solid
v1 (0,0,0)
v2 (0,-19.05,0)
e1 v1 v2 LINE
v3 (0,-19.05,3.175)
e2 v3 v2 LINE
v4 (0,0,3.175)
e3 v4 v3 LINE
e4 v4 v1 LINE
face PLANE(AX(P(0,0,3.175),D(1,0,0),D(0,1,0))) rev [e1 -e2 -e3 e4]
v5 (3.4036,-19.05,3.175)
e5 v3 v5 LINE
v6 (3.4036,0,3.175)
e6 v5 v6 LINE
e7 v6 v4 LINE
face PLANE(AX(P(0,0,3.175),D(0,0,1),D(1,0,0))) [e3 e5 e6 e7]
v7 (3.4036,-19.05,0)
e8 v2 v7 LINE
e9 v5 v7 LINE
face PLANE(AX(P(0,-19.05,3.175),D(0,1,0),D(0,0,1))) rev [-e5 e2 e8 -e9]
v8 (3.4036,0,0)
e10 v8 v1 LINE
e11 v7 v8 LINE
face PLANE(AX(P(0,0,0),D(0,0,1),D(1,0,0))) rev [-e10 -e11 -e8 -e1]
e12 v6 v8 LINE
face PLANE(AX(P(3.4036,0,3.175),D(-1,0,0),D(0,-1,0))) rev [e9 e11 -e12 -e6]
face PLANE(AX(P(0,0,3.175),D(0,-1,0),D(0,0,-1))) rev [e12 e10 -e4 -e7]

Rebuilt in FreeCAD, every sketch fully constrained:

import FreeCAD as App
import Part
import Sketcher
Q = App.Units.Quantity


def add_polygon(sketch, points):
    """Adds a closed chain of lines whose ends are joined by coincident constraints."""
    first, n = sketch.GeometryCount, len(points)
    for a, b in zip(points, points[1:] + points[:1]):
        sketch.addGeometry(Part.LineSegment(App.Vector(*a, 0), App.Vector(*b, 0)), False)
    for i in range(n):
        sketch.addConstraint(Sketcher.Constraint("Coincident", first + i, 2, first + (i + 1) % n, 1))

doc = App.newDocument("Part")
params = doc.addObject("Spreadsheet::Sheet", "Params")
for row, (alias, value) in enumerate([
    ("sketch1_height", "0.75 in"),
    ("sketch1_width", "0.134 in"),
    ("pad1_length", "0.125 in"),
], start=1):
    params.set(f"A{row}", alias)
    params.set(f"B{row}", "=" + value)
    params.setAlias(f"B{row}", alias)

body = doc.addObject("PartDesign::Body", "Body")

sketch1 = body.newObject("Sketcher::SketchObject", "Sketch")
sketch1.AttachmentSupport = (doc.getObject("XY_Plane"), [""])
sketch1.MapMode = "FlatFace"
add_polygon(sketch1, [(0, 0), (0, -19.1), (3.4, -19.1), (3.4, 0)])
sketch1.addConstraint(Sketcher.Constraint("Vertical", 0))
sketch1.addConstraint(Sketcher.Constraint("Horizontal", 1))
sketch1.addConstraint(Sketcher.Constraint("Vertical", 2))
sketch1.addConstraint(Sketcher.Constraint("Horizontal", 3))
sketch1.addConstraint(Sketcher.Constraint("Coincident", 3, 2, -1, 1))
sketch1.addConstraint(Sketcher.Constraint("DistanceY", 0, 2, 0, 1, Q("0.75 in")))
sketch1.addConstraint(Sketcher.Constraint("DistanceX", 1, 1, 1, 2, Q("0.134 in")))
sketch1.setExpression("Constraints[9]", "Params.sketch1_height")
sketch1.setExpression("Constraints[10]", "Params.sketch1_width")
pad1 = body.newObject("PartDesign::Pad", "Pad")
pad1.Profile = sketch1
pad1.setExpression("Length", "Params.pad1_length")

doc.recompute()
